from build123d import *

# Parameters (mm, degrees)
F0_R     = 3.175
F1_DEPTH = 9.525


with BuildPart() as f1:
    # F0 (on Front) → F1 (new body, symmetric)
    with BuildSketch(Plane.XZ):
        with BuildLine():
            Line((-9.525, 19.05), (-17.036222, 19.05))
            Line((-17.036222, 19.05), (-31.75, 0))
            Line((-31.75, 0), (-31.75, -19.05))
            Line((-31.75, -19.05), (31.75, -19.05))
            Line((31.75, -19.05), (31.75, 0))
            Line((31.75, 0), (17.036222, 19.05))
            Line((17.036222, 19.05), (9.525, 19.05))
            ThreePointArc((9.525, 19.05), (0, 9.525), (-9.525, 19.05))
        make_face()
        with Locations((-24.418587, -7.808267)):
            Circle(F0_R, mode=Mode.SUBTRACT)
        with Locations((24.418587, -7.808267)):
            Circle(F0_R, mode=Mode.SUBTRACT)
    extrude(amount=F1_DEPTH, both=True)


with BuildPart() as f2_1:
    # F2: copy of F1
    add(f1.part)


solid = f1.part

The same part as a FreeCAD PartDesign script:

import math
import FreeCAD as App
import Part
import Sketcher
from FreeCAD import Vector
Q = App.Units.Quantity

doc = App.newDocument("Part")
body = doc.addObject("PartDesign::Body", "Body")

# Sketch on XZ plane
sketch1 = body.newObject("Sketcher::SketchObject", "Sketch")
sketch1.AttachmentSupport = (doc.getObject("XZ_Plane"), [""])
sketch1.MapMode = "FlatFace"
sketch1.addGeometry([
    Part.LineSegment(Vector(-9.5, 19.1, 0), Vector(-17, 19.1, 0)),  # 0
    Part.LineSegment(Vector(-17, 19.1, 0), Vector(-31.8, 0, 0)),  # 1
    Part.LineSegment(Vector(-31.8, 0, 0), Vector(-31.8, -19.1, 0)),  # 2
    Part.LineSegment(Vector(-31.8, -19.1, 0), Vector(31.8, -19.1, 0)),  # 3
    Part.LineSegment(Vector(31.8, -19.1, 0), Vector(31.8, 0, 0)),  # 4
    Part.LineSegment(Vector(31.8, 0, 0), Vector(17, 19.1, 0)),  # 5
    Part.LineSegment(Vector(17, 19.1, 0), Vector(9.5, 19.1, 0)),  # 6
    Part.ArcOfCircle(Part.Circle(Vector(0, 19.1, 0), Vector(0, 0, 1), 9.5), math.radians(180), math.radians(360)),  # 7
    Part.Circle(Vector(-24.4, -7.8, 0), Vector(0, 0, 1), 3.2),  # 8
    Part.Circle(Vector(24.4, -7.8, 0), Vector(0, 0, 1), 3.2),  # 9
], False)
sketch1.addConstraint([
    Sketcher.Constraint("Coincident", 0, 2, 1, 1),
    Sketcher.Constraint("Coincident", 1, 2, 2, 1),
    Sketcher.Constraint("Coincident", 2, 2, 3, 1),
    Sketcher.Constraint("Coincident", 3, 2, 4, 1),
    Sketcher.Constraint("Coincident", 4, 2, 5, 1),
    Sketcher.Constraint("Coincident", 5, 2, 6, 1),
    Sketcher.Constraint("Coincident", 6, 2, 7, 2),
    Sketcher.Constraint("Coincident", 7, 1, 0, 1),
    Sketcher.Constraint("Horizontal", 0),
    Sketcher.Constraint("Vertical", 2),
    Sketcher.Constraint("Horizontal", 3),
    Sketcher.Constraint("Vertical", 4),
    Sketcher.Constraint("Horizontal", 6),
    Sketcher.Constraint("Equal", 8, 9),
    Sketcher.Constraint("Symmetric", 1, 2, 4, 2, -1, 1),
    Sketcher.Constraint("Symmetric", 8, 3, 9, 3, -2),
    Sketcher.Constraint("Symmetric", 0, 2, 5, 2, -2),
    Sketcher.Constraint("PointOnObject", 7, 3, -2),
    Sketcher.Constraint("PointOnObject", 1, 2, -1),
    Sketcher.Constraint("Horizontal", 7, 3, 0, 2),
    Sketcher.Constraint("Diameter", 8, Q("0.25 in")),
    Sketcher.Constraint("DistanceX", 3, 1, 3, 2, Q("2.5 in")),
    Sketcher.Constraint("Radius", 7, Q("0.375 in")),
    Sketcher.Constraint("DistanceY", 2, 2, 2, 1, Q("0.75 in")),
    Sketcher.Constraint("DistanceY", 2, 2, 0, 2, Q("1.5 in")),
    Sketcher.Constraint("DistanceX", 0, 2, 0, 1, 7.511222),
    Sketcher.Constraint("DistanceX", 0, 2, 9, 3, 41.454809),
    Sketcher.Constraint("DistanceY", 8, 3, -1, 1, 7.808267),
])
pad1 = body.newObject("PartDesign::Pad", "Pad")
pad1.Profile = sketch1
pad1.Length = Q("0.75 in")
pad1.Midplane = True
body2 = doc.addObject("PartDesign::Body", "Body001")
doc.recompute()

body2.BaseFeature = body
doc.recompute()
body.Visibility = False

doc.recompute()
